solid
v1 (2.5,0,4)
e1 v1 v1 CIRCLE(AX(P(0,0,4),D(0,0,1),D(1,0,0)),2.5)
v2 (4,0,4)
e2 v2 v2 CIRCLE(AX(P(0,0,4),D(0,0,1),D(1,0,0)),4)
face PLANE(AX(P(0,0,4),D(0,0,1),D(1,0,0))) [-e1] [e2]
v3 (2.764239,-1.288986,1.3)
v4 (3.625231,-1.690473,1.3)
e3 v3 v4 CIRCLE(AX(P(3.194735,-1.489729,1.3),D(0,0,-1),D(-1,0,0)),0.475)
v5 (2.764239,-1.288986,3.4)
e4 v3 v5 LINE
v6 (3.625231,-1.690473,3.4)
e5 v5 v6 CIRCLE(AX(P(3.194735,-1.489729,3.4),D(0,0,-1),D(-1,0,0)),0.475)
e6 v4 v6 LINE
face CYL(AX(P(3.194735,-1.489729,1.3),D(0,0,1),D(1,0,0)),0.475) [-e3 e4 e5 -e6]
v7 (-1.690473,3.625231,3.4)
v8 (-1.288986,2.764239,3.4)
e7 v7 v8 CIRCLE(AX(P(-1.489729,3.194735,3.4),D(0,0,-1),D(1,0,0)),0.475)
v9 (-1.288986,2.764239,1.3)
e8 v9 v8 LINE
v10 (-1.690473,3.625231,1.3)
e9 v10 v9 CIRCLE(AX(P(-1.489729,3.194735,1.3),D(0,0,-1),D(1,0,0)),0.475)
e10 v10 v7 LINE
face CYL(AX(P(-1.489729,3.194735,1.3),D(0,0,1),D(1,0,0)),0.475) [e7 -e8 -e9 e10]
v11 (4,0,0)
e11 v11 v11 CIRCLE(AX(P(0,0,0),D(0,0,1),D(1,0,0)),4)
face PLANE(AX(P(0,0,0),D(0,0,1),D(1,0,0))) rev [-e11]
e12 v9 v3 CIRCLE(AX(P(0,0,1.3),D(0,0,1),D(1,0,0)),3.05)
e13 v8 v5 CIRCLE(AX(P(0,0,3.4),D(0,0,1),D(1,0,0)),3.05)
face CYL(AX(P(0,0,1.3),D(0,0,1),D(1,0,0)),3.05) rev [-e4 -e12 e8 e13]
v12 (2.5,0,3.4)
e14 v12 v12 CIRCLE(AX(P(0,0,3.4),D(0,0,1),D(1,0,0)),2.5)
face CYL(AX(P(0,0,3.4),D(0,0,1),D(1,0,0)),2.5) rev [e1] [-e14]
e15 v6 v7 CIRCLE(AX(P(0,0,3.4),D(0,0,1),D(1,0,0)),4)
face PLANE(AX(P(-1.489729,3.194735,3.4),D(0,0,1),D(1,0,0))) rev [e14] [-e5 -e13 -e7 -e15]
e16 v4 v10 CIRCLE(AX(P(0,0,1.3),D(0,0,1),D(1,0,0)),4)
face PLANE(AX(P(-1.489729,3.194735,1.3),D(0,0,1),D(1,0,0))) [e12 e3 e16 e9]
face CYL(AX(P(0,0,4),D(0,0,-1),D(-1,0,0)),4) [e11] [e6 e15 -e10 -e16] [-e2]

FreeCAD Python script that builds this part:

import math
import FreeCAD as App
import Part
import Sketcher

V = App.Vector
Q = App.Units.Quantity

doc = App.newDocument("Part")
body = doc.addObject("PartDesign::Body", "Body")

sketch1 = body.newObject("Sketcher::SketchObject", "Sketch")
sketch1.AttachmentSupport = (doc.getObject("XY_Plane"), [""])
sketch1.MapMode = "FlatFace"
sketch1.addGeometry(Part.Circle(V(0, 0, 0), V(0, 0, 1), 4), False)
sketch1.addConstraint([
    Sketcher.Constraint("Coincident", 0, 3, -1, 1),
    Sketcher.Constraint("Diameter", 0, 8.0),
])
pad1 = body.newObject("PartDesign::Pad", "Pad")
pad1.Profile = sketch1
pad1.Length = 4

sketch2 = body.newObject("Sketcher::SketchObject", "Sketch001")
sketch2.AttachmentSupport = (doc.getObject("XY_Plane"), [""])
sketch2.MapMode = "FlatFace"
sketch2.AttachmentOffset = App.Placement(V(0, 0, 4), App.Rotation())
sketch2.addGeometry(Part.Circle(V(0, 0, 0), V(0, 0, 1), 2.5), False)
sketch2.addConstraint([
    Sketcher.Constraint("Coincident", 0, 3, -1, 1),
    Sketcher.Constraint("Diameter", 0, 5.0),
])
pocket1 = body.newObject("PartDesign::Pocket", "Pocket")
pocket1.Profile = sketch2
pocket1.Length = 0.6

sketch3 = body.newObject("Sketcher::SketchObject", "Sketch002")
sketch3.AttachmentSupport = (doc.getObject("XY_Plane"), [""])
sketch3.MapMode = "FlatFace"
sketch3.AttachmentOffset = App.Placement(V(0, 0, 3.4), App.Rotation())
sketch3.addGeometry([
    Part.LineSegment(V(-2.11, 4.53, 0), V(-1.69, 3.63, 0)),
    Part.ArcOfCircle(Part.Circle(V(-1.49, 3.19, 0), V(0, 0, 1), 0.47), math.radians(-65), math.radians(115)),
    Part.ArcOfCircle(Part.Circle(V(0, 0, 0), V(0, 0, 1), 3.05), math.radians(115), math.radians(335)),
    Part.ArcOfCircle(Part.Circle(V(3.19, -1.49, 0), V(0, 0, 1), 0.47), math.radians(-25), math.radians(155)),
    Part.LineSegment(V(3.63, -1.69, 0), V(4.53, -2.11, 0)),
    Part.ArcOfCircle(Part.Circle(V(0, 0, 0), V(0, 0, 1), 5), math.radians(-25), math.radians(115)),
], False)
sketch3.addConstraint([
    Sketcher.Constraint("Coincident", 0, 2, 1, 2),
    Sketcher.Constraint("Tangent", 1, 1, 2, 1),
    Sketcher.Constraint("Tangent", 2, 2, 3, 2),
    Sketcher.Constraint("Coincident", 3, 1, 4, 1),
    Sketcher.Constraint("Coincident", 4, 2, 5, 1),
    Sketcher.Constraint("Coincident", 5, 2, 0, 1),
    Sketcher.Constraint("Coincident", 2, 3, -1, 1),
    Sketcher.Constraint("Coincident", 5, 3, -1, 1),
    Sketcher.Constraint("Equal", 1, 3),
    Sketcher.Constraint("Radius", 5, 5.0),
    Sketcher.Constraint("Angle", 0, Q("-65 deg")),
    Sketcher.Constraint("Angle", 4, Q("-25 deg")),
    Sketcher.Constraint("Radius", 2, 3.05),
    Sketcher.Constraint("Distance", 0, 1.0),
    Sketcher.Constraint("DistanceX", 2, 2, 4, 2, 1.7673),
    Sketcher.Constraint("DistanceY", 1, 1, 5, 2, 1.7673),
    Sketcher.Constraint("DistanceX", 1, 3, -1, 1, 1.489729),
    Sketcher.Constraint("DistanceY", 3, 3, -1, 1, 1.489729),
])
pocket2 = body.newObject("PartDesign::Pocket", "Pocket001")
pocket2.Profile = sketch3
pocket2.Length = 2.1

doc.recompute()
